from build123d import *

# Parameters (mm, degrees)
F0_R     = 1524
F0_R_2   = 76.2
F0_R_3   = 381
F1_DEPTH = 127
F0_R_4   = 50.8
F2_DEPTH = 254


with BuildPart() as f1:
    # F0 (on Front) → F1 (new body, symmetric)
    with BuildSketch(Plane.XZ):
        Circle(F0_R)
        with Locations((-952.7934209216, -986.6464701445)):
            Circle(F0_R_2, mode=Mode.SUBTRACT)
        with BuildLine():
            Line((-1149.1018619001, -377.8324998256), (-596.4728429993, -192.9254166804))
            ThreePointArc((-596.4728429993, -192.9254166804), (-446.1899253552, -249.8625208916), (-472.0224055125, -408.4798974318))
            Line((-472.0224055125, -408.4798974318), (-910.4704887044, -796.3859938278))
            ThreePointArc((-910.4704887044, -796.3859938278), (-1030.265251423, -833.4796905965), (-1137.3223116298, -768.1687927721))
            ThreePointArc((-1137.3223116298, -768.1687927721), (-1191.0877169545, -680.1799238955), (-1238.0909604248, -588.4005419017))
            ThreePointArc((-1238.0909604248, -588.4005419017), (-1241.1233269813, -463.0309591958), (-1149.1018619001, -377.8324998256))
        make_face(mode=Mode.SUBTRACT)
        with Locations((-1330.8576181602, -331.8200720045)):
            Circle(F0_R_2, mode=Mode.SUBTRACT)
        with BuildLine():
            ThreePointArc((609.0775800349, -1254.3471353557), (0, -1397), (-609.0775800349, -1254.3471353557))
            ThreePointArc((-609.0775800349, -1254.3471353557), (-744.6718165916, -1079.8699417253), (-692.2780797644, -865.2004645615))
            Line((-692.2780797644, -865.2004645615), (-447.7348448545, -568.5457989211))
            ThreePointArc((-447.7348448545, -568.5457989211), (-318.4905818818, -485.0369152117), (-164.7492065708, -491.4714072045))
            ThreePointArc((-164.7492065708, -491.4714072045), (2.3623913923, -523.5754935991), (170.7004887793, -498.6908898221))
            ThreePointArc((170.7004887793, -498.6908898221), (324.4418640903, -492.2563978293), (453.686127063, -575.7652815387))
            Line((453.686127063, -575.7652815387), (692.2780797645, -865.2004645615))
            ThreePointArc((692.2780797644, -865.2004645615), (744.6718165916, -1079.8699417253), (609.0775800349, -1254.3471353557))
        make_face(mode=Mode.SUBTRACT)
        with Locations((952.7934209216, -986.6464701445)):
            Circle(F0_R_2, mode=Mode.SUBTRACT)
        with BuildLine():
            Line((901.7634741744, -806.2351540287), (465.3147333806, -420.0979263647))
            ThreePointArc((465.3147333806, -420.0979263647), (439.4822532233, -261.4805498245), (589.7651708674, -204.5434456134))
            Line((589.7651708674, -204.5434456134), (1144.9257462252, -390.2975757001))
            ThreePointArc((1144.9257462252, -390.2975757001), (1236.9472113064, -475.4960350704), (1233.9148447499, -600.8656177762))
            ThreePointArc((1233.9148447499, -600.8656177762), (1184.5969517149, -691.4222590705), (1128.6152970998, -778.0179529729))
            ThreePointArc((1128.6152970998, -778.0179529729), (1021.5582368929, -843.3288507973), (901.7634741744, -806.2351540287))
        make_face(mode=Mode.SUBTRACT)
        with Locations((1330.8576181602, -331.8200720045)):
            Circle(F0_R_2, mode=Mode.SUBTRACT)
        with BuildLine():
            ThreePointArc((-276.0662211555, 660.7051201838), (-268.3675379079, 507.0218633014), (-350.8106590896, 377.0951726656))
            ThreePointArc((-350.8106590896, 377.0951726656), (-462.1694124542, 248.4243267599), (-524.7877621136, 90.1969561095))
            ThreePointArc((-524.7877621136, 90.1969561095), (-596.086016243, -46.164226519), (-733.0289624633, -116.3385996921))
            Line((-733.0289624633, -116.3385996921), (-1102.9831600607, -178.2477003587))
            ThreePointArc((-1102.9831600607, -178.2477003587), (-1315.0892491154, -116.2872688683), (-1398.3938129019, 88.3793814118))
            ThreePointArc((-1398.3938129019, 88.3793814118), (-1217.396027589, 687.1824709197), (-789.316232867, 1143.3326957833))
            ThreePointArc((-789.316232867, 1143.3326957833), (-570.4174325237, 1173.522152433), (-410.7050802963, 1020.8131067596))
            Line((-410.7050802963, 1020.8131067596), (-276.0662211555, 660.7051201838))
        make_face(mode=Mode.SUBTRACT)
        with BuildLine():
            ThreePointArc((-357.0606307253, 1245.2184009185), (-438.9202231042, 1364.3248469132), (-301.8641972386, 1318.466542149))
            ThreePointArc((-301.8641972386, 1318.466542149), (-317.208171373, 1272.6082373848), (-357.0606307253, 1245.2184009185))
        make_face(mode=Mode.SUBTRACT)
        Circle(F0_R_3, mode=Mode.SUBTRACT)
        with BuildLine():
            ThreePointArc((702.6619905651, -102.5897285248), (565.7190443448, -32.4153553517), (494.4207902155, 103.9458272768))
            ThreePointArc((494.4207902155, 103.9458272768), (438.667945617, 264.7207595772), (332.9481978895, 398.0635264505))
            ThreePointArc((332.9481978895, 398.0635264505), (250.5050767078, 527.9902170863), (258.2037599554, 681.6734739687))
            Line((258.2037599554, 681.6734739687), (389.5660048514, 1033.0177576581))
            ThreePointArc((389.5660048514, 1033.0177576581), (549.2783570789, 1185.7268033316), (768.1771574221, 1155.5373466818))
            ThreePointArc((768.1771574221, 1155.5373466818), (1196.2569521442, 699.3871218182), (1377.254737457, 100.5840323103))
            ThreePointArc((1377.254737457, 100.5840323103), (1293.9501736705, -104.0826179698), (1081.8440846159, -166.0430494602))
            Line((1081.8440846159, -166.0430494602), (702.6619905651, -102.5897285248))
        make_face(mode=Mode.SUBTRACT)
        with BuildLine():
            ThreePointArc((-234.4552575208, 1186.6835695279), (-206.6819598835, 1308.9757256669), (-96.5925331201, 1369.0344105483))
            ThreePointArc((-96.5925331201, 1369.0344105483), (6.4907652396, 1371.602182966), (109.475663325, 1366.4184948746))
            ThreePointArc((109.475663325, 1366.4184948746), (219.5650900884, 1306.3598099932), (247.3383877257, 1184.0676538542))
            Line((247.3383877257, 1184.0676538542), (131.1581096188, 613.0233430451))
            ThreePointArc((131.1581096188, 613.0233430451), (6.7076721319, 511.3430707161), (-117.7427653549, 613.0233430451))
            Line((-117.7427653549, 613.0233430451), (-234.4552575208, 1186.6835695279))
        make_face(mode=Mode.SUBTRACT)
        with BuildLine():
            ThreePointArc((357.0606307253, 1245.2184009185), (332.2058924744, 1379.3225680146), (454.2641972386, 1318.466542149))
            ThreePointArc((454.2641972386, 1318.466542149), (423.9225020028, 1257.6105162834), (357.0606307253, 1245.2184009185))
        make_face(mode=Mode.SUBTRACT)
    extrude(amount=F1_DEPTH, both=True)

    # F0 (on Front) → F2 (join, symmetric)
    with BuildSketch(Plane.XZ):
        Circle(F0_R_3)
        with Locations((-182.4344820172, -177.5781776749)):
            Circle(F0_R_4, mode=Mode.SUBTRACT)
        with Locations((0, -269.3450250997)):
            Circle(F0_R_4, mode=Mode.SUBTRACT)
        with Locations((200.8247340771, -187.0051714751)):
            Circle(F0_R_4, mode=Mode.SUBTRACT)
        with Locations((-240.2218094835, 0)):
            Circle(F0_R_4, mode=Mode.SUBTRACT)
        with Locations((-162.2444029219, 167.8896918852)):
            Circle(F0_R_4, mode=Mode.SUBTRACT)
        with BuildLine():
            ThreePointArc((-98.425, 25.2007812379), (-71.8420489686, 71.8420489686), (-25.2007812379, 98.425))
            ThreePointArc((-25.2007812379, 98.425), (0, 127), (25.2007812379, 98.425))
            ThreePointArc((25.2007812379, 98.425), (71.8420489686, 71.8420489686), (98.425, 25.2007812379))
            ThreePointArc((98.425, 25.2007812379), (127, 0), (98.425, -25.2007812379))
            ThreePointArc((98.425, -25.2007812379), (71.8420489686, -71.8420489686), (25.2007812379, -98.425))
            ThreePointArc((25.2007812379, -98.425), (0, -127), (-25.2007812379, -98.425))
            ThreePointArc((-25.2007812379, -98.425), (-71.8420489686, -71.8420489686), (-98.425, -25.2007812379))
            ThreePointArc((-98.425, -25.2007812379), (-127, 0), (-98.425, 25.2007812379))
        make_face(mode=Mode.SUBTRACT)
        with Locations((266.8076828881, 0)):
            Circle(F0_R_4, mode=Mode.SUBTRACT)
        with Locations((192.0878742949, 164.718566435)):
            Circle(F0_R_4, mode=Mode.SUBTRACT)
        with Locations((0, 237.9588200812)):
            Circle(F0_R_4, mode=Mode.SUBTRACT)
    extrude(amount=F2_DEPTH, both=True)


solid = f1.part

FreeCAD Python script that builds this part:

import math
import FreeCAD as App
import Part
import Sketcher
Q = App.Units.Quantity

doc = App.newDocument("Part")
params = doc.addObject("Spreadsheet::Sheet", "Params")
for row, (alias, value) in enumerate([
    ("sketch1_diameter", "120 in"),
    ("sketch1_diameter2", "6 in"),
    ("sketch1_diameter3", "6 in"),
    ("sketch1_diameter4", "6 in"),
    ("sketch1_diameter5", "6 in"),
    ("pad1_length", "10 in"),
    ("sketch2_diameter", "30 in"),
    ("sketch2_diameter2", "4 in"),
    ("sketch2_radius", "1 in"),
    ("sketch2_radius2", "4 in"),
    ("pad2_length", "20 in"),
], start=1):
    params.set(f"A{row}", alias)
    params.set(f"B{row}", "=" + value)
    params.setAlias(f"B{row}", alias)

body = doc.addObject("PartDesign::Body", "Body")

sketch1 = body.newObject("Sketcher::SketchObject", "Sketch")
sketch1.AttachmentSupport = (doc.getObject("XZ_Plane"), [""])
sketch1.MapMode = "FlatFace"
sketch1.addGeometry([
    Part.Circle(App.Vector(0, 0, 0), App.Vector(0, 0, 1), 1524),
    Part.Circle(App.Vector(-952.793421, -986.64647, 0), App.Vector(0, 0, 1), 76.2),
    Part.ArcOfCircle(Part.Circle(App.Vector(496.285436, -1026.764333, 0), App.Vector(0, 0, 1), 254), math.radians(-63.636559), math.radians(39.5)),
    Part.ArcOfCircle(Part.Circle(App.Vector(0, -25.4, 0), App.Vector(0, 0, 1), 1371.6), math.radians(-116.363441), math.radians(-63.636559)),
    Part.ArcOfCircle(Part.Circle(App.Vector(-496.285436, -1026.764333, 0), App.Vector(0, 0, 1), 254), math.radians(140.5), math.radians(243.636559)),
    Part.LineSegment(App.Vector(-692.27808, -865.200465, 0), App.Vector(-447.734845, -568.545799, 0)),
    Part.ArcOfCircle(Part.Circle(App.Vector(-251.742201, -730.109667, 0), App.Vector(0, 0, 1), 254), math.radians(69.971221), math.radians(140.5)),
    Part.ArcOfCircle(Part.Circle(App.Vector(13.292937, -15.693103, 0), App.Vector(0, 0, 1), 508), math.radians(-110.516473), math.radians(-71.949364)),
    Part.ArcOfCircle(Part.Circle(App.Vector(257.693483, -737.329149, 0), App.Vector(0, 0, 1), 254), math.radians(39.5), math.radians(110.028779)),
    Part.LineSegment(App.Vector(453.686127, -575.765282, 0), App.Vector(692.27808, -865.200465, 0)),
    Part.ArcOfCircle(Part.Circle(App.Vector(-1100.744632, -522.357025, 0), App.Vector(0, 0, 1), 152.4), math.radians(108.5), math.radians(205.680756)),
    Part.LineSegment(App.Vector(-1149.101862, -377.8325, 0), App.Vector(-596.472843, -192.925417, 0)),
    Part.ArcOfCircle(Part.Circle(App.Vector(-556.175152, -313.362521, 0), App.Vector(0, 0, 1), 127), math.radians(-48.5), math.radians(108.5)),
    Part.LineSegment(App.Vector(-472.022406, -408.479897, 0), App.Vector(-910.470489, -796.385994, 0)),
    Part.ArcOfCircle(Part.Circle(App.Vector(-1011.453784, -682.245142, 0), App.Vector(0, 0, 1), 152.4), math.radians(-145.680756), math.radians(-48.5)),
    Part.ArcOfCircle(Part.Circle(App.Vector(5.362159, -9.512902, 0), App.Vector(0, 0, 1), 1371.6), math.radians(-155.035742), math.radians(-146.418853)),
    Part.Circle(App.Vector(-1330.857618, -331.820072, 0), App.Vector(0, 0, 1), 76.2),
    Part.Circle(App.Vector(952.793421, -986.64647, 0), App.Vector(0, 0, 1), 76.2),
    Part.ArcOfCircle(Part.Circle(App.Vector(1002.74677, -692.094302, 0), App.Vector(0, 0, 1), 152.4), math.radians(-131.5), math.radians(-34.319244)),
    Part.LineSegment(App.Vector(901.763474, -806.235154, 0), App.Vector(465.314733, -420.097926, 0)),
    Part.ArcOfCircle(Part.Circle(App.Vector(549.46748, -324.98055, 0), App.Vector(0, 0, 1), 127), math.radians(71.5), math.radians(228.5)),
    Part.LineSegment(App.Vector(589.765171, -204.543446, 0), App.Vector(1144.925746, -390.297576, 0)),
    Part.ArcOfCircle(Part.Circle(App.Vector(1096.568517, -534.822101, 0), App.Vector(0, 0, 1), 152.4), math.radians(-25.680756), math.radians(71.5)),
    Part.ArcOfCircle(Part.Circle(App.Vector(5.557336, 9.400217, 0), App.Vector(0, 0, 1), 1371.6), math.radians(-35.035742), math.radians(-26.418853)),
    Part.Circle(App.Vector(1330.857618, -331.820072, 0), App.Vector(0, 0, 1), 76.2),
    Part.LineSegment(App.Vector(-410.70508, 1020.813107, 0), App.Vector(-276.066221, 660.70512, 0)),
    Part.ArcOfCircle(Part.Circle(App.Vector(-513.980957, 571.752445, 0), App.Vector(0, 0, 1), 254), math.radians(-50.028779), math.radians(20.5)),
    Part.ArcOfCircle(Part.Circle(App.Vector(-27.795632, -14.982999, 0), App.Vector(0, 0, 1), 508), math.radians(129.483527), math.radians(168.050636)),
    Part.ArcOfCircle(Part.Circle(App.Vector(-774.951054, 134.177943, 0), App.Vector(0, 0, 1), 254), math.radians(-80.5), math.radians(-9.971221)),
    Part.LineSegment(App.Vector(-733.028962, -116.3386, 0), App.Vector(-1102.98316, -178.2477, 0)),
    Part.ArcOfCircle(Part.Circle(App.Vector(-1144.905252, 72.268842, 0), App.Vector(0, 0, 1), 254), math.radians(176.363441), math.radians(279.5)),
    Part.ArcOfCircle(Part.Circle(App.Vector(-29.555584, 1.382471, 0), App.Vector(0, 0, 1), 1371.6), math.radians(123.636559), math.radians(176.363441)),
    Part.ArcOfCircle(Part.Circle(App.Vector(-648.619816, 931.860432, 0), App.Vector(0, 0, 1), 254), math.radians(20.5), math.radians(123.636559)),
    Part.Circle(App.Vector(0, 0, 0), App.Vector(0, 0, 1), 381),
    Part.Circle(App.Vector(-378.064197, 1318.466542, 0), App.Vector(0, 0, 1), 76.2),
    Part.LineSegment(App.Vector(1081.844085, -166.043049, 0), App.Vector(702.661991, -102.589729, 0)),
    Part.ArcOfCircle(Part.Circle(App.Vector(744.584082, 147.926814, 0), App.Vector(0, 0, 1), 254), math.radians(-170.028779), math.radians(-99.5)),
    Part.ArcOfCircle(Part.Circle(App.Vector(-6.63638, 20.245694, 0), App.Vector(0, 0, 1), 508), math.radians(9.483527), math.radians(48.050636)),
    Part.ArcOfCircle(Part.Circle(App.Vector(496.118496, 592.720799, 0), App.Vector(0, 0, 1), 254), math.radians(159.5), math.radians(230.028779)),
    Part.LineSegment(App.Vector(258.20376, 681.673474, 0), App.Vector(389.566005, 1033.017758, 0)),
    Part.ArcOfCircle(Part.Circle(App.Vector(627.480741, 944.065083, 0), App.Vector(0, 0, 1), 254), math.radians(56.363441), math.radians(159.5)),
    Part.ArcOfCircle(Part.Circle(App.Vector(8.416508, 13.587122, 0), App.Vector(0, 0, 1), 1371.6), math.radians(3.636559), math.radians(56.363441)),
    Part.ArcOfCircle(Part.Circle(App.Vector(1123.766177, 84.473493, 0), App.Vector(0, 0, 1), 254), math.radians(-99.5), math.radians(3.636559)),
    Part.LineSegment(App.Vector(-117.742765, 613.023343, 0), App.Vector(-234.455258, 1186.68357, 0)),
    Part.ArcOfCircle(Part.Circle(App.Vector(-85.114733, 1217.067243, 0), App.Vector(0, 0, 1), 152.4), math.radians(94.319244), math.radians(191.5)),
    Part.ArcOfCircle(Part.Circle(App.Vector(-10.919495, 0.112685, 0), App.Vector(0, 0, 1), 1371.6), math.radians(84.964258), math.radians(93.581147)),
    Part.ArcOfCircle(Part.Circle(App.Vector(97.997863, 1214.451327, 0), App.Vector(0, 0, 1), 152.4), math.radians(-11.5), math.radians(85.680756)),
    Part.LineSegment(App.Vector(247.338388, 1184.067654, 0), App.Vector(131.15811, 613.023343, 0)),
    Part.ArcOfCircle(Part.Circle(App.Vector(6.707672, 638.343071, 0), App.Vector(0, 0, 1), 127), math.radians(-168.5), math.radians(-11.5)),
    Part.Circle(App.Vector(378.064197, 1318.466542, 0), App.Vector(0, 0, 1), 76.2),
], False)
sketch1.addConstraint([
    Sketcher.Constraint("Coincident", 2, 1, 3, 2),
    Sketcher.Constraint("Coincident", 3, 1, 4, 2),
    Sketcher.Constraint("Coincident", 4, 1, 5, 1),
    Sketcher.Constraint("Coincident", 5, 2, 6, 2),
    Sketcher.Constraint("Coincident", 6, 1, 7, 1),
    Sketcher.Constraint("Coincident", 7, 2, 8, 2),
    Sketcher.Constraint("Coincident", 8, 1, 9, 1),
    Sketcher.Constraint("Coincident", 9, 2, 2, 2),
    Sketcher.Constraint("Coincident", 10, 1, 11, 1),
    Sketcher.Constraint("Coincident", 11, 2, 12, 2),
    Sketcher.Constraint("Coincident", 12, 1, 13, 1),
    Sketcher.Constraint("Coincident", 13, 2, 14, 2),
    Sketcher.Constraint("Coincident", 14, 1, 15, 2),
    Sketcher.Constraint("Coincident", 15, 1, 10, 2),
    Sketcher.Constraint("Coincident", 18, 1, 19, 1),
    Sketcher.Constraint("Coincident", 19, 2, 20, 2),
    Sketcher.Constraint("Coincident", 20, 1, 21, 1),
    Sketcher.Constraint("Coincident", 21, 2, 22, 2),
    Sketcher.Constraint("Coincident", 22, 1, 23, 2),
    Sketcher.Constraint("Coincident", 23, 1, 18, 2),
    Sketcher.Constraint("Coincident", 25, 2, 26, 2),
    Sketcher.Constraint("Coincident", 26, 1, 27, 1),
    Sketcher.Constraint("Coincident", 27, 2, 28, 2),
    Sketcher.Constraint("Coincident", 28, 1, 29, 1),
    Sketcher.Constraint("Coincident", 29, 2, 30, 2),
    Sketcher.Constraint("Coincident", 30, 1, 31, 2),
    Sketcher.Constraint("Coincident", 31, 1, 32, 2),
    Sketcher.Constraint("Coincident", 32, 1, 25, 1),
    Sketcher.Constraint("Coincident", 35, 2, 36, 2),
    Sketcher.Constraint("Coincident", 36, 1, 37, 1),
    Sketcher.Constraint("Coincident", 37, 2, 38, 2),
    Sketcher.Constraint("Coincident", 38, 1, 39, 1),
    Sketcher.Constraint("Coincident", 39, 2, 40, 2),
    Sketcher.Constraint("Coincident", 40, 1, 41, 2),
    Sketcher.Constraint("Coincident", 41, 1, 42, 2),
    Sketcher.Constraint("Coincident", 42, 1, 35, 1),
    Sketcher.Constraint("Coincident", 43, 2, 44, 2),
    Sketcher.Constraint("Coincident", 44, 1, 45, 2),
    Sketcher.Constraint("Coincident", 45, 1, 46, 2),
    Sketcher.Constraint("Coincident", 46, 1, 47, 1),
    Sketcher.Constraint("Coincident", 47, 2, 48, 2),
    Sketcher.Constraint("Coincident", 48, 1, 43, 1),
    Sketcher.Constraint("Coincident", 0, 3, -1, 1),
    Sketcher.Constraint("Coincident", 33, 3, -1, 1),
    Sketcher.Constraint("PointOnObject", 3, 3, -2),
    Sketcher.Constraint("Diameter", 0, Q("120 in")),
    Sketcher.Constraint("Diameter", 1, Q("6 in")),
    Sketcher.Constraint("Diameter", 16, Q("6 in")),
    Sketcher.Constraint("Diameter", 17, Q("6 in")),
    Sketcher.Constraint("Diameter", 24, Q("6 in")),
    Sketcher.Constraint("Diameter", 33, Q("30 in")),
    Sketcher.Constraint("Diameter", 34, Q("6 in")),
    Sketcher.Constraint("Diameter", 49, Q("6 in")),
    Sketcher.Constraint("Radius", 2, Q("10 in")),
    Sketcher.Constraint("Radius", 3, Q("54 in")),
    Sketcher.Constraint("Radius", 4, Q("10 in")),
    Sketcher.Constraint("Radius", 6, Q("10 in")),
    Sketcher.Constraint("Radius", 7, Q("20 in")),
    Sketcher.Constraint("Radius", 8, Q("10 in")),
    Sketcher.Constraint("Radius", 10, Q("6 in")),
    Sketcher.Constraint("Radius", 12, Q("5 in")),
    Sketcher.Constraint("Radius", 14, Q("6 in")),
    Sketcher.Constraint("Radius", 15, Q("54 in")),
    Sketcher.Constraint("Radius", 18, Q("6 in")),
    Sketcher.Constraint("Radius", 20, Q("5 in")),
    Sketcher.Constraint("Radius", 22, Q("6 in")),
    Sketcher.Constraint("Radius", 23, Q("54 in")),
    Sketcher.Constraint("Radius", 26, Q("10 in")),
    Sketcher.Constraint("Radius", 27, Q("20 in")),
    Sketcher.Constraint("Radius", 28, Q("10 in")),
    Sketcher.Constraint("Radius", 30, Q("10 in")),
    Sketcher.Constraint("Radius", 31, Q("54 in")),
    Sketcher.Constraint("Radius", 32, Q("10 in")),
    Sketcher.Constraint("Radius", 36, Q("10 in")),
    Sketcher.Constraint("Radius", 37, Q("20 in")),
    Sketcher.Constraint("Radius", 38, Q("10 in")),
    Sketcher.Constraint("Radius", 40, Q("10 in")),
    Sketcher.Constraint("Radius", 41, Q("54 in")),
    Sketcher.Constraint("Radius", 42, Q("10 in")),
    Sketcher.Constraint("Radius", 44, Q("6 in")),
    Sketcher.Constraint("Radius", 45, Q("54 in")),
    Sketcher.Constraint("Radius", 46, Q("6 in")),
    Sketcher.Constraint("Radius", 48, Q("5 in")),
    Sketcher.Constraint("DistanceY", 3, 3, -1, 1, Q("1 in")),
    Sketcher.Constraint("DistanceX", 6, 3, -1, 1, Q("251.742201 mm")),
    Sketcher.Constraint("DistanceY", 22, 3, -1, 1, Q("534.822101 mm")),
    Sketcher.Constraint("DistanceY", 27, 3, -1, 1, Q("14.982999 mm")),
    Sketcher.Constraint("DistanceY", -1, 1, 38, 3, Q("592.720799 mm")),
    Sketcher.Constraint("DistanceY", 5, 2, -1, 1, Q("568.545799 mm")),
    Sketcher.Constraint("DistanceY", 10, 1, -1, 1, Q("377.8325 mm")),
    Sketcher.Constraint("DistanceY", 28, 1, -1, 1, Q("116.3386 mm")),
    Sketcher.Constraint("DistanceY", 29, 2, -1, 1, Q("178.2477 mm")),
    Sketcher.Constraint("Distance", 5, Q("384.454658 mm")),
    Sketcher.Constraint("Distance", 11, Q("582.74305 mm")),
    Sketcher.Constraint("Distance", 19, Q("582.74305 mm")),
    Sketcher.Constraint("Distance", 25, Q("384.454658 mm")),
    Sketcher.Constraint("Distance", 35, Q("384.454658 mm")),
    Sketcher.Constraint("Distance", 47, Q("582.74305 mm")),
    Sketcher.Constraint("DistanceX", 1, 3, -1, 1, Q("952.793421 mm")),
    Sketcher.Constraint("DistanceY", 1, 3, -1, 1, Q("986.64647 mm")),
    Sketcher.Constraint("DistanceY", 8, 3, -1, 1, Q("737.329149 mm")),
    Sketcher.Constraint("DistanceX", 12, 3, -1, 1, Q("556.175152 mm")),
    Sketcher.Constraint("DistanceY", 12, 3, -1, 1, Q("313.362521 mm")),
    Sketcher.Constraint("DistanceY", 14, 3, -1, 1, Q("682.245142 mm")),
    Sketcher.Constraint("DistanceX", -1, 1, 15, 3, Q("5.362159 mm")),
    Sketcher.Constraint("DistanceX", 16, 3, -1, 1, Q("1330.857618 mm")),
    Sketcher.Constraint("DistanceX", -1, 1, 17, 3, Q("952.793421 mm")),
    Sketcher.Constraint("DistanceY", 17, 3, -1, 1, Q("986.64647 mm")),
    Sketcher.Constraint("DistanceX", -1, 1, 18, 3, Q("1002.74677 mm")),
    Sketcher.Constraint("DistanceX", -1, 1, 20, 3, Q("549.46748 mm")),
    Sketcher.Constraint("DistanceY", 20, 3, -1, 1, Q("324.98055 mm")),
    Sketcher.Constraint("DistanceX", -1, 1, 24, 3, Q("1330.857618 mm")),
    Sketcher.Constraint("DistanceX", 30, 3, -1, 1, Q("1144.905252 mm")),
    Sketcher.Constraint("DistanceY", -1, 1, 31, 3, Q("1.382471 mm")),
    Sketcher.Constraint("DistanceY", -1, 1, 32, 3, Q("931.860432 mm")),
    Sketcher.Constraint("DistanceX", 37, 3, -1, 1, Q("6.63638 mm")),
    Sketcher.Constraint("DistanceX", -1, 1, 40, 3, Q("627.480741 mm")),
    Sketcher.Constraint("DistanceX", -1, 1, 41, 3, Q("8.416508 mm")),
    Sketcher.Constraint("DistanceY", -1, 1, 41, 3, Q("13.587122 mm")),
    Sketcher.Constraint("DistanceY", -1, 1, 48, 3, Q("638.343071 mm")),
    Sketcher.Constraint("DistanceX", -1, 1, 2, 1, Q("609.07758 mm")),
    Sketcher.Constraint("DistanceX", 3, 1, -1, 1, Q("609.07758 mm")),
    Sketcher.Constraint("DistanceX", 4, 1, -1, 1, Q("692.27808 mm")),
    Sketcher.Constraint("DistanceX", -1, 1, 7, 2, Q("170.700489 mm")),
    Sketcher.Constraint("DistanceY", 8, 1, -1, 1, Q("575.765282 mm")),
    Sketcher.Constraint("DistanceX", -1, 1, 9, 2, Q("692.27808 mm")),
    Sketcher.Constraint("DistanceX", 10, 1, -1, 1, Q("1149.101862 mm")),
    Sketcher.Constraint("DistanceX", 13, 2, -1, 1, Q("910.470489 mm")),
    Sketcher.Constraint("DistanceX", 14, 1, -1, 1, Q("1137.322312 mm")),
    Sketcher.Constraint("DistanceX", 15, 1, -1, 1, Q("1238.09096 mm")),
    Sketcher.Constraint("DistanceX", -1, 1, 20, 1, Q("589.765171 mm")),
    Sketcher.Constraint("DistanceX", 25, 2, -1, 1, Q("276.066221 mm")),
    Sketcher.Constraint("DistanceY", -1, 1, 25, 2, Q("660.70512 mm")),
    Sketcher.Constraint("DistanceX", 26, 1, -1, 1, Q("350.810659 mm")),
    Sketcher.Constraint("DistanceX", 29, 2, -1, 1, Q("1102.98316 mm")),
    Sketcher.Constraint("DistanceY", -1, 1, 30, 1, Q("88.379381 mm")),
    Sketcher.Constraint("DistanceX", -1, 1, 35, 2, Q("702.661991 mm")),
    Sketcher.Constraint("DistanceY", 35, 2, -1, 1, Q("102.589729 mm")),
    Sketcher.Constraint("DistanceX", -1, 1, 36, 1, Q("494.42079 mm")),
    Sketcher.Constraint("DistanceX", -1, 1, 38, 1, Q("258.20376 mm")),
    Sketcher.Constraint("DistanceY", 42, 1, -1, 1, Q("166.043049 mm")),
    Sketcher.Constraint("DistanceY", -1, 1, 43, 2, Q("1186.68357 mm")),
    Sketcher.Constraint("DistanceY", -1, 1, 44, 1, Q("1369.034411 mm")),
    Sketcher.Constraint("DistanceX", -1, 1, 47, 2, Q("131.15811 mm")),
    Sketcher.Constraint("Distance", 9, Q("375.098447 mm")),
    Sketcher.Constraint("Distance", 13, Q("585.412556 mm")),
    Sketcher.Constraint("Distance", 21, Q("585.412556 mm")),
    Sketcher.Constraint("Distance", 29, Q("375.098447 mm")),
    Sketcher.Constraint("Distance", 39, Q("375.098447 mm")),
    Sketcher.Constraint("Distance", 43, Q("585.412556 mm")),
    Sketcher.Constraint("DistanceX", -1, 1, 2, 3, Q("496.285436 mm")),
    Sketcher.Constraint("DistanceX", 4, 3, -1, 1, Q("496.285436 mm")),
    Sketcher.Constraint("DistanceX", -1, 1, 7, 3, Q("13.292937 mm")),
    Sketcher.Constraint("DistanceX", 10, 3, -1, 1, Q("1100.744632 mm")),
    Sketcher.Constraint("DistanceY", 16, 3, -1, 1, Q("331.820072 mm")),
    Sketcher.Constraint("DistanceY", 18, 3, -1, 1, Q("692.094302 mm")),
    Sketcher.Constraint("DistanceX", -1, 1, 22, 3, Q("1096.568517 mm")),
    Sketcher.Constraint("DistanceX", -1, 1, 23, 3, Q("5.557336 mm")),
    Sketcher.Constraint("DistanceY", -1, 1, 23, 3, Q("9.400217 mm")),
    Sketcher.Constraint("DistanceY", 24, 3, -1, 1, Q("331.820072 mm")),
    Sketcher.Constraint("DistanceX", 26, 3, -1, 1, Q("513.980957 mm")),
    Sketcher.Constraint("DistanceX", 28, 3, -1, 1, Q("774.951054 mm")),
    Sketcher.Constraint("DistanceX", 34, 3, -1, 1, Q("378.064197 mm")),
    Sketcher.Constraint("DistanceY", -1, 1, 34, 3, Q("1318.466542 mm")),
    Sketcher.Constraint("DistanceX", -1, 1, 36, 3, Q("744.584082 mm")),
    Sketcher.Constraint("DistanceX", -1, 1, 38, 3, Q("496.118496 mm")),
    Sketcher.Constraint("DistanceX", 44, 3, -1, 1, Q("85.114733 mm")),
    Sketcher.Constraint("DistanceY", -1, 1, 44, 3, Q("1217.067243 mm")),
    Sketcher.Constraint("DistanceX", 45, 3, -1, 1, Q("10.919495 mm")),
    Sketcher.Constraint("DistanceX", -1, 1, 46, 3, Q("97.997863 mm")),
    Sketcher.Constraint("DistanceY", -1, 1, 46, 3, Q("1214.451327 mm")),
    Sketcher.Constraint("DistanceX", -1, 1, 48, 3, Q("6.707672 mm")),
    Sketcher.Constraint("DistanceX", -1, 1, 49, 3, Q("378.064197 mm")),
    Sketcher.Constraint("DistanceY", -1, 1, 49, 3, Q("1318.466542 mm")),
    Sketcher.Constraint("DistanceX", -1, 1, 18, 1, Q("901.763474 mm")),
    Sketcher.Constraint("DistanceX", 31, 1, -1, 1, Q("789.316233 mm")),
    Sketcher.Constraint("DistanceX", -1, 1, 40, 1, Q("768.177157 mm")),
    Sketcher.Constraint("DistanceX", -1, 1, 41, 1, Q("1377.254737 mm")),
])
sketch1.setExpression("Constraints[45]", "Params.sketch1_diameter")
sketch1.setExpression("Constraints[46]", "Params.sketch1_diameter2")
sketch1.setExpression("Constraints[47]", "Params.sketch1_diameter3")
sketch1.setExpression("Constraints[48]", "Params.sketch1_diameter4")
sketch1.setExpression("Constraints[49]", "Params.sketch1_diameter5")
pad1 = body.newObject("PartDesign::Pad", "Pad")
pad1.Profile = sketch1
pad1.setExpression("Length", "Params.pad1_length")
pad1.Midplane = True

sketch2 = body.newObject("Sketcher::SketchObject", "Sketch001")
sketch2.AttachmentSupport = (doc.getObject("XZ_Plane"), [""])
sketch2.MapMode = "FlatFace"
sketch2.addGeometry([
    Part.Circle(App.Vector(0, 0, 0), App.Vector(0, 0, 1), 381),
    Part.Circle(App.Vector(-182, -178, 0), App.Vector(0, 0, 1), 51),
    Part.Circle(App.Vector(0, -269, 0), App.Vector(0, 0, 1), 51),
    Part.Circle(App.Vector(201, -187, 0), App.Vector(0, 0, 1), 51),
    Part.Circle(App.Vector(-240, 0, 0), App.Vector(0, 0, 1), 51),
    Part.ArcOfCircle(Part.Circle(App.Vector(-102, 0, 0), App.Vector(0, 0, 1), 25), math.radians(83), math.radians(277)),
    Part.ArcOfCircle(Part.Circle(App.Vector(0, 0, 0), App.Vector(0, 0, 1), 102), math.radians(104), math.radians(166)),
    Part.ArcOfCircle(Part.Circle(App.Vector(0, 102, 0), App.Vector(0, 0, 1), 25), math.radians(-7), math.radians(187)),
    Part.ArcOfCircle(Part.Circle(App.Vector(0, 0, 0), App.Vector(0, 0, 1), 102), math.radians(14), math.radians(76)),
    Part.ArcOfCircle(Part.Circle(App.Vector(102, 0, 0), App.Vector(0, 0, 1), 25), math.radians(-97), math.radians(97)),
    Part.ArcOfCircle(Part.Circle(App.Vector(0, 0, 0), App.Vector(0, 0, 1), 102), math.radians(-76), math.radians(-14)),
    Part.ArcOfCircle(Part.Circle(App.Vector(0, -102, 0), App.Vector(0, 0, 1), 25), math.radians(173), math.radians(367)),
    Part.ArcOfCircle(Part.Circle(App.Vector(0, 0, 0), App.Vector(0, 0, 1), 102), math.radians(-166), math.radians(-104)),
    Part.Circle(App.Vector(-162, 168, 0), App.Vector(0, 0, 1), 51),
    Part.Circle(App.Vector(0, 238, 0), App.Vector(0, 0, 1), 51),
    Part.Circle(App.Vector(267, 0, 0), App.Vector(0, 0, 1), 51),
    Part.Circle(App.Vector(192, 165, 0), App.Vector(0, 0, 1), 51),
], False)
sketch2.addConstraint([
    Sketcher.Constraint("Coincident", 5, 1, 6, 2),
    Sketcher.Constraint("Coincident", 6, 1, 7, 2),
    Sketcher.Constraint("Coincident", 7, 1, 8, 2),
    Sketcher.Constraint("Coincident", 8, 1, 9, 2),
    Sketcher.Constraint("Coincident", 9, 1, 10, 2),
    Sketcher.Constraint("Coincident", 10, 1, 11, 2),
    Sketcher.Constraint("Coincident", 11, 1, 12, 2),
    Sketcher.Constraint("Coincident", 12, 1, 5, 2),
    Sketcher.Constraint("Coincident", 0, 3, -1, 1),
    Sketcher.Constraint("Coincident", 6, 3, -1, 1),
    Sketcher.Constraint("Coincident", 8, 3, -1, 1),
    Sketcher.Constraint("Coincident", 10, 3, -1, 1),
    Sketcher.Constraint("Coincident", 12, 3, -1, 1),
    Sketcher.Constraint("Equal", 1, 2),
    Sketcher.Constraint("Equal", 2, 3),
    Sketcher.Constraint("Equal", 3, 4),
    Sketcher.Constraint("Equal", 5, 7),
    Sketcher.Constraint("Equal", 6, 8),
    Sketcher.Constraint("Equal", 7, 9),
    Sketcher.Constraint("Equal", 8, 10),
    Sketcher.Constraint("Equal", 9, 11),
    Sketcher.Constraint("Equal", 10, 12),
    Sketcher.Constraint("Equal", 4, 13),
    Sketcher.Constraint("Equal", 13, 14),
    Sketcher.Constraint("Equal", 14, 15),
    Sketcher.Constraint("Equal", 15, 16),
    Sketcher.Constraint("Symmetric", 5, 3, 9, 3, -1, 1),
    Sketcher.Constraint("Symmetric", 7, 3, 11, 3, -1, 1),
    Sketcher.Constraint("PointOnObject", 2, 3, -2),
    Sketcher.Constraint("PointOnObject", 4, 3, -1),
    Sketcher.Constraint("PointOnObject", 5, 3, -1),
    Sketcher.Constraint("PointOnObject", 7, 3, -2),
    Sketcher.Constraint("PointOnObject", 14, 3, -2),
    Sketcher.Constraint("PointOnObject", 15, 3, -1),
    Sketcher.Constraint("Diameter", 0, Q("30 in")),
    Sketcher.Constraint("Diameter", 1, Q("4 in")),
    Sketcher.Constraint("Radius", 5, Q("1 in")),
    Sketcher.Constraint("Radius", 6, Q("4 in")),
    Sketcher.Constraint("DistanceX", 5, 3, -1, 1, Q("4 in")),
    Sketcher.Constraint("DistanceY", -1, 1, 7, 3, Q("4 in")),
    Sketcher.Constraint("DistanceY", 3, 3, -1, 1, Q("187.005171 mm")),
    Sketcher.Constraint("DistanceX", 4, 3, -1, 1, Q("240.221809 mm")),
    Sketcher.Constraint("DistanceY", -1, 1, 13, 3, Q("167.889692 mm")),
    Sketcher.Constraint("DistanceY", -1, 1, 14, 3, Q("237.95882 mm")),
    Sketcher.Constraint("DistanceX", 3, 3, 15, 3, Q("65.982949 mm")),
    Sketcher.Constraint("DistanceX", 16, 3, 15, 3, Q("74.719809 mm")),
    Sketcher.Constraint("DistanceX", 1, 3, -1, 1, Q("182.434482 mm")),
    Sketcher.Constraint("DistanceY", 1, 3, -1, 1, Q("177.578178 mm")),
    Sketcher.Constraint("DistanceY", 2, 3, -1, 1, Q("269.345025 mm")),
    Sketcher.Constraint("DistanceX", -1, 1, 3, 3, Q("200.824734 mm")),
    Sketcher.Constraint("DistanceX", 13, 3, -1, 1, Q("162.244403 mm")),
    Sketcher.Constraint("DistanceY", -1, 1, 16, 3, Q("164.718566 mm")),
])
sketch2.setExpression("Constraints[34]", "Params.sketch2_diameter")
sketch2.setExpression("Constraints[35]", "Params.sketch2_diameter2")
sketch2.setExpression("Constraints[36]", "Params.sketch2_radius")
sketch2.setExpression("Constraints[37]", "Params.sketch2_radius2")
pad2 = body.newObject("PartDesign::Pad", "Pad001")
pad2.Profile = sketch2
pad2.setExpression("Length", "Params.pad2_length")
pad2.Midplane = True

doc.recompute()
